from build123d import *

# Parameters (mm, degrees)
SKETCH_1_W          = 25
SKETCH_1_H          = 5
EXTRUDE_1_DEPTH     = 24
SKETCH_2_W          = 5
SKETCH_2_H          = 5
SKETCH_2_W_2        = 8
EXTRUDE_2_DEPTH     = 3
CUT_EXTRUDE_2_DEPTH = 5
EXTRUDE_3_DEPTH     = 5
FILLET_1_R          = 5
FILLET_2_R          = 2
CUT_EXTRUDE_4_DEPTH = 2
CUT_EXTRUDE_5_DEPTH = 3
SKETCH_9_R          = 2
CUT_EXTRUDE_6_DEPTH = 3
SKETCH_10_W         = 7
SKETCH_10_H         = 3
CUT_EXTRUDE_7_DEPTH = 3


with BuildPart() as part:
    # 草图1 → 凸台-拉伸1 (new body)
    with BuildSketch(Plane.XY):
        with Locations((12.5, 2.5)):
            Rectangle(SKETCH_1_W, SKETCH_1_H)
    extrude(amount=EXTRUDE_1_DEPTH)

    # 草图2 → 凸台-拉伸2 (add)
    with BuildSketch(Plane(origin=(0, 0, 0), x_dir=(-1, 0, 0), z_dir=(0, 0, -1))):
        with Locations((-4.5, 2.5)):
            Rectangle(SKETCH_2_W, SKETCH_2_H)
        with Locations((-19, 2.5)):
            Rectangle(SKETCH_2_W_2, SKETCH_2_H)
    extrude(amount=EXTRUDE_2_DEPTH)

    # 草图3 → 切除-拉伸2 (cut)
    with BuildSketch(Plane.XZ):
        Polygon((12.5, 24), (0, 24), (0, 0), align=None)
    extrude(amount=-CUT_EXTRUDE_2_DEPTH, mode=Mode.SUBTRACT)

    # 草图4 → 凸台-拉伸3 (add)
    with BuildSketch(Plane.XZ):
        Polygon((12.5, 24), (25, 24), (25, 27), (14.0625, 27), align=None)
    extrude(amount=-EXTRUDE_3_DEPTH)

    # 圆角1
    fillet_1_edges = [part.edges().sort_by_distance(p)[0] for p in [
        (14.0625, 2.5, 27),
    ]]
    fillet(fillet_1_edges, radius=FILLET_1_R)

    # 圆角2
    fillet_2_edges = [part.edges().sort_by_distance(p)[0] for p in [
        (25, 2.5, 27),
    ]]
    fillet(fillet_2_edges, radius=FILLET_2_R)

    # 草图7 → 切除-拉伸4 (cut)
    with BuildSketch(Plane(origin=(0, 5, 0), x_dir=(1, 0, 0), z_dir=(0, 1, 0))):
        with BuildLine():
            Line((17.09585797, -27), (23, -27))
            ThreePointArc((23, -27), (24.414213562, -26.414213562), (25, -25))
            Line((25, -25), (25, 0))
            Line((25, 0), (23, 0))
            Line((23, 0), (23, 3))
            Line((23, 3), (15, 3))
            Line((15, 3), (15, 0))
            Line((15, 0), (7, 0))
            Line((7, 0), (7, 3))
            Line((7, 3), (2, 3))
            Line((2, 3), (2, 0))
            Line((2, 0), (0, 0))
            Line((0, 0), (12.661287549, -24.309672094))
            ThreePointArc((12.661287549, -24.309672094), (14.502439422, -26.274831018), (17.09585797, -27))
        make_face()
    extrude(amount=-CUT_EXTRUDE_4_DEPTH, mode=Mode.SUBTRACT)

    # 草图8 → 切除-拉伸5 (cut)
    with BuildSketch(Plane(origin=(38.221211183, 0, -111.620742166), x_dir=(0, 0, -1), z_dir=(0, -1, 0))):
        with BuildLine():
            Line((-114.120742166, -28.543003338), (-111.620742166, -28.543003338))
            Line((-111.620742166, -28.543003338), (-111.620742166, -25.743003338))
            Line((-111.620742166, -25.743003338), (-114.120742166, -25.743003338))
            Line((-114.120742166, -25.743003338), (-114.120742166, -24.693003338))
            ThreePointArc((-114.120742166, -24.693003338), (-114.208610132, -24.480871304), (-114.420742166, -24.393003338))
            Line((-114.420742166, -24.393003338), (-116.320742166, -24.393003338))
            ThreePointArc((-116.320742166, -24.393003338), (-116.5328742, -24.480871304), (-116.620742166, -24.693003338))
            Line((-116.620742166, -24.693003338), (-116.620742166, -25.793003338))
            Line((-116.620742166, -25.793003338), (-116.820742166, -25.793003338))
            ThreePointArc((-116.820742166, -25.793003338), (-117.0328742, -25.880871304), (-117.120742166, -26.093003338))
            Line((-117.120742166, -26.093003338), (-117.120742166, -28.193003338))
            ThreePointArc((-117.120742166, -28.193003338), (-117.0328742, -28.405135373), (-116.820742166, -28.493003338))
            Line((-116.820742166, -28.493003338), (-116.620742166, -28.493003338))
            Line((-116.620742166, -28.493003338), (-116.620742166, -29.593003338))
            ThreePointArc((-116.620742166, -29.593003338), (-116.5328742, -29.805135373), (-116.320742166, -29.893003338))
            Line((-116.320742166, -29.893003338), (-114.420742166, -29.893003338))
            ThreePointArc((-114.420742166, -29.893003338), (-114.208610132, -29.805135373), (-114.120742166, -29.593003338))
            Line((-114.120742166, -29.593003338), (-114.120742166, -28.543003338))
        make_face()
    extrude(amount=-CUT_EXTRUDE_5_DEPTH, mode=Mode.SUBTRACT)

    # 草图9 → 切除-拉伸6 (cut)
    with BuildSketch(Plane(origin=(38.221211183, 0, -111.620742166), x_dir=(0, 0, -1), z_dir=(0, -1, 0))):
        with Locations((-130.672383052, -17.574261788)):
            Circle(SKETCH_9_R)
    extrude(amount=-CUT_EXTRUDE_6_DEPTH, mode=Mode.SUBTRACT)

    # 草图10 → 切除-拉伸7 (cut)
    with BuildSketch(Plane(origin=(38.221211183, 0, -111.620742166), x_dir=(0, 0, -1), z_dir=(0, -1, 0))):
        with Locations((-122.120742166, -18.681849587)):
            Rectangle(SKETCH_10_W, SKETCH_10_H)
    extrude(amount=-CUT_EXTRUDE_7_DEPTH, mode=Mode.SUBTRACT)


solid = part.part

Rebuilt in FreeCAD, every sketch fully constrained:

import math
import FreeCAD as App
import Part
import Sketcher


def edges_at(feature, points):
    """Names of the edges that pass closest to the given points."""
    edges = feature.Shape.Edges
    near = lambda p: min(range(len(edges)), key=lambda i: edges[i].distToShape(Part.Vertex(*p))[0])
    return sorted({f"Edge{near(p) + 1}" for p in points})

doc = App.newDocument("Part")
params = doc.addObject("Spreadsheet::Sheet", "Params")
for row, (alias, value) in enumerate([
    ("sketch1_width", "25 mm"),
    ("sketch1_height", "5 mm"),
    ("pad1_length", "24 mm"),
    ("sketch2_width", "5 mm"),
    ("sketch2_width2", "8 mm"),
    ("pad2_length", "3 mm"),
    ("sketch3_height", "24 mm"),
    ("sketch3_width", "12.5 mm"),
    ("pocket1_length", "5 mm"),
    ("sketch4_height", "3 mm"),
    ("sketch4_width", "12.5 mm"),
    ("pad3_length", "5 mm"),
    ("fillet_radius", "5 mm"),
    ("fillet2_radius", "2 mm"),
    ("sketch5_radius", "2 mm"),
    ("sketch5_radius2", "5 mm"),
    ("sketch5_width", "8 mm"),
    ("sketch5_width2", "5 mm"),
    ("sketch5_height", "25 mm"),
    ("pocket2_length", "2 mm"),
    ("sketch6_radius", "0.3 mm"),
    ("sketch6_width", "2.8 mm"),
    ("sketch6_width2", "1.1 mm"),
    ("sketch6_width3", "2.1 mm"),
    ("sketch6_height", "2.5 mm"),
    ("pocket3_length", "3 mm"),
    ("sketch7_diameter", "4 mm"),
    ("pocket4_length", "3 mm"),
    ("sketch8_width", "3 mm"),
    ("sketch8_height", "7 mm"),
    ("pocket5_length", "3 mm"),
], start=1):
    params.set(f"A{row}", alias)
    params.set(f"B{row}", "=" + value)
    params.setAlias(f"B{row}", alias)

body = doc.addObject("PartDesign::Body", "Body")

# Sketch on XY plane
sketch1 = body.newObject("Sketcher::SketchObject", "Sketch")
sketch1.AttachmentSupport = (doc.getObject("XY_Plane"), [""])
sketch1.MapMode = "FlatFace"
sketch1.addGeometry([
    Part.LineSegment(App.Vector(0, 5, 0), App.Vector(0, 0, 0)),
    Part.LineSegment(App.Vector(0, 0, 0), App.Vector(25, 0, 0)),
    Part.LineSegment(App.Vector(25, 0, 0), App.Vector(25, 5, 0)),
    Part.LineSegment(App.Vector(25, 5, 0), App.Vector(0, 5, 0)),
], False)
sketch1.addConstraint([
    Sketcher.Constraint("Coincident", 0, 2, 1, 1),
    Sketcher.Constraint("Coincident", 1, 2, 2, 1),
    Sketcher.Constraint("Coincident", 2, 2, 3, 1),
    Sketcher.Constraint("Coincident", 3, 2, 0, 1),
    Sketcher.Constraint("Vertical", 0),
    Sketcher.Constraint("Horizontal", 1),
    Sketcher.Constraint("Vertical", 2),
    Sketcher.Constraint("Horizontal", 3),
    Sketcher.Constraint("Coincident", 0, 2, -1, 1),
    Sketcher.Constraint("DistanceX", 1, 1, 1, 2, 25.0),
    Sketcher.Constraint("DistanceY", 0, 2, 0, 1, 5.0),
])
sketch1.setExpression("Constraints[9]", "Params.sketch1_width")
sketch1.setExpression("Constraints[10]", "Params.sketch1_height")
pad1 = body.newObject("PartDesign::Pad", "Pad")
pad1.Profile = sketch1
pad1.setExpression("Length", "Params.pad1_length")

# Sketch on XY plane
sketch2 = body.newObject("Sketcher::SketchObject", "Sketch001")
sketch2.AttachmentSupport = (doc.getObject("XY_Plane"), [""])
sketch2.MapMode = "FlatFace"
sketch2.addGeometry([
    Part.LineSegment(App.Vector(7, 5, 0), App.Vector(7, 0, 0)),  # 0
    Part.LineSegment(App.Vector(7, 0, 0), App.Vector(2, 0, 0)),  # 1
    Part.LineSegment(App.Vector(2, 0, 0), App.Vector(2, 5, 0)),  # 2
    Part.LineSegment(App.Vector(2, 5, 0), App.Vector(7, 5, 0)),  # 3
    Part.LineSegment(App.Vector(23, 5, 0), App.Vector(23, 0, 0)),  # 4
    Part.LineSegment(App.Vector(23, 0, 0), App.Vector(15, 0, 0)),  # 5
    Part.LineSegment(App.Vector(15, 0, 0), App.Vector(15, 5, 0)),  # 6
    Part.LineSegment(App.Vector(15, 5, 0), App.Vector(23, 5, 0)),  # 7
], False)
sketch2.addConstraint([
    Sketcher.Constraint("Coincident", 0, 2, 1, 1),
    Sketcher.Constraint("Coincident", 1, 2, 2, 1),
    Sketcher.Constraint("Coincident", 2, 2, 3, 1),
    Sketcher.Constraint("Coincident", 3, 2, 0, 1),
    Sketcher.Constraint("Coincident", 4, 2, 5, 1),
    Sketcher.Constraint("Coincident", 5, 2, 6, 1),
    Sketcher.Constraint("Coincident", 6, 2, 7, 1),
    Sketcher.Constraint("Coincident", 7, 2, 4, 1),
    Sketcher.Constraint("Vertical", 0),
    Sketcher.Constraint("Horizontal", 1),
    Sketcher.Constraint("Vertical", 2),
    Sketcher.Constraint("Horizontal", 3),
    Sketcher.Constraint("Vertical", 4),
    Sketcher.Constraint("Horizontal", 5),
    Sketcher.Constraint("Vertical", 6),
    Sketcher.Constraint("Horizontal", 7),
    Sketcher.Constraint("PointOnObject", 0, 2, -1),
    Sketcher.Constraint("PointOnObject", 4, 2, -1),
    Sketcher.Constraint("Horizontal", 3, 2, 6, 2),
    Sketcher.Constraint("Equal", 3, 0),
    Sketcher.Constraint("DistanceX", 1, 2, 1, 1, 5.0),
    Sketcher.Constraint("DistanceX", 5, 2, 5, 1, 8.0),
    Sketcher.Constraint("DistanceX", -1, 1, 0, 2, 7.0),
    Sketcher.Constraint("DistanceX", -1, 1, 4, 2, 23.0),
])
sketch2.setExpression("Constraints[20]", "Params.sketch2_width")
sketch2.setExpression("Constraints[21]", "Params.sketch2_width2")
pad2 = body.newObject("PartDesign::Pad", "Pad001")
pad2.Profile = sketch2
pad2.setExpression("Length", "Params.pad2_length")
pad2.Reversed = True

# Sketch on XZ plane
sketch3 = body.newObject("Sketcher::SketchObject", "Sketch002")
sketch3.AttachmentSupport = (doc.getObject("XZ_Plane"), [""])
sketch3.MapMode = "FlatFace"
sketch3.addGeometry([
    Part.LineSegment(App.Vector(12, 24, 0), App.Vector(0, 24, 0)),
    Part.LineSegment(App.Vector(0, 24, 0), App.Vector(0, 0, 0)),
    Part.LineSegment(App.Vector(0, 0, 0), App.Vector(12, 24, 0)),
], False)
sketch3.addConstraint([
    Sketcher.Constraint("Coincident", 0, 2, 1, 1),
    Sketcher.Constraint("Coincident", 1, 2, 2, 1),
    Sketcher.Constraint("Coincident", 2, 2, 0, 1),
    Sketcher.Constraint("Horizontal", 0),
    Sketcher.Constraint("Vertical", 1),
    Sketcher.Constraint("Coincident", 1, 2, -1, 1),
    Sketcher.Constraint("DistanceY", 1, 2, 1, 1, 24.0),
    Sketcher.Constraint("DistanceX", 0, 2, 0, 1, 12.5),
])
sketch3.setExpression("Constraints[6]", "Params.sketch3_height")
sketch3.setExpression("Constraints[7]", "Params.sketch3_width")
pocket1 = body.newObject("PartDesign::Pocket", "Pocket")
pocket1.Profile = sketch3
pocket1.setExpression("Length", "Params.pocket1_length")

# Sketch on XZ plane
sketch4 = body.newObject("Sketcher::SketchObject", "Sketch003")
sketch4.AttachmentSupport = (doc.getObject("XZ_Plane"), [""])
sketch4.MapMode = "FlatFace"
sketch4.addGeometry([
    Part.LineSegment(App.Vector(12.5, 24, 0), App.Vector(25, 24, 0)),
    Part.LineSegment(App.Vector(25, 24, 0), App.Vector(25, 27, 0)),
    Part.LineSegment(App.Vector(25, 27, 0), App.Vector(14.1, 27, 0)),
    Part.LineSegment(App.Vector(14.1, 27, 0), App.Vector(12.5, 24, 0)),
], False)
sketch4.addConstraint([
    Sketcher.Constraint("Coincident", 0, 2, 1, 1),
    Sketcher.Constraint("Coincident", 1, 2, 2, 1),
    Sketcher.Constraint("Coincident", 2, 2, 3, 1),
    Sketcher.Constraint("Coincident", 3, 2, 0, 1),
    Sketcher.Constraint("Horizontal", 0),
    Sketcher.Constraint("Vertical", 1),
    Sketcher.Constraint("Horizontal", 2),
    Sketcher.Constraint("DistanceY", 1, 1, 1, 2, 3.0),
    Sketcher.Constraint("DistanceX", 0, 1, 0, 2, 12.5),
    Sketcher.Constraint("DistanceX", -1, 1, 0, 2, 25.0),
    Sketcher.Constraint("DistanceY", -1, 1, 0, 2, 24.0),
    Sketcher.Constraint("DistanceX", 2, 2, 2, 1, 10.9375),
])
sketch4.setExpression("Constraints[7]", "Params.sketch4_height")
sketch4.setExpression("Constraints[8]", "Params.sketch4_width")
pad3 = body.newObject("PartDesign::Pad", "Pad002")
pad3.Profile = sketch4
pad3.setExpression("Length", "Params.pad3_length")
pad3.Reversed = True
doc.recompute()

fillet = body.newObject("PartDesign::Fillet", "Fillet")
fillet.Base = (pad3, edges_at(pad3, [(14.062, 2.5, 27)]))
fillet.setExpression("Radius", "Params.fillet_radius")
doc.recompute()

fillet2 = body.newObject("PartDesign::Fillet", "Fillet001")
fillet2.Base = (fillet, edges_at(fillet, [(25, 2.5, 27)]))
fillet2.setExpression("Radius", "Params.fillet2_radius")

# Sketch on XZ plane
sketch5 = body.newObject("Sketcher::SketchObject", "Sketch004")
sketch5.AttachmentSupport = (doc.getObject("XZ_Plane"), [""])
sketch5.MapMode = "FlatFace"
sketch5.AttachmentOffset = App.Placement(App.Vector(0, 0, -5), App.Rotation())
sketch5.addGeometry([
    Part.LineSegment(App.Vector(17.1, 27, 0), App.Vector(23, 27, 0)),  # 0
    Part.ArcOfCircle(Part.Circle(App.Vector(23, 25, 0), App.Vector(0, 0, 1), 2), math.radians(0), math.radians(90)),  # 1
    Part.LineSegment(App.Vector(25, 25, 0), App.Vector(25, 0, 0)),  # 2
    Part.LineSegment(App.Vector(25, 0, 0), App.Vector(23, 0, 0)),  # 3
    Part.LineSegment(App.Vector(23, 0, 0), App.Vector(23, -3, 0)),  # 4
    Part.LineSegment(App.Vector(23, -3, 0), App.Vector(15, -3, 0)),  # 5
    Part.LineSegment(App.Vector(15, -3, 0), App.Vector(15, 0, 0)),  # 6
    Part.LineSegment(App.Vector(15, 0, 0), App.Vector(7, 0, 0)),  # 7
    Part.LineSegment(App.Vector(7, 0, 0), App.Vector(7, -3, 0)),  # 8
    Part.LineSegment(App.Vector(7, -3, 0), App.Vector(2, -3, 0)),  # 9
    Part.LineSegment(App.Vector(2, -3, 0), App.Vector(2, 0, 0)),  # 10
    Part.LineSegment(App.Vector(2, 0, 0), App.Vector(0, 0, 0)),  # 11
    Part.LineSegment(App.Vector(0, 0, 0), App.Vector(12.7, 24.3, 0)),  # 12
    Part.ArcOfCircle(Part.Circle(App.Vector(17.1, 22, 0), App.Vector(0, 0, 1), 5), math.radians(90), math.radians(152)),  # 13
], False)
sketch5.addConstraint([
    Sketcher.Constraint("Tangent", 0, 2, 1, 2),
    Sketcher.Constraint("Tangent", 1, 1, 2, 1),
    Sketcher.Constraint("Coincident", 2, 2, 3, 1),
    Sketcher.Constraint("Coincident", 3, 2, 4, 1),
    Sketcher.Constraint("Coincident", 4, 2, 5, 1),
    Sketcher.Constraint("Coincident", 5, 2, 6, 1),
    Sketcher.Constraint("Coincident", 6, 2, 7, 1),
    Sketcher.Constraint("Coincident", 7, 2, 8, 1),
    Sketcher.Constraint("Coincident", 8, 2, 9, 1),
    Sketcher.Constraint("Coincident", 9, 2, 10, 1),
    Sketcher.Constraint("Coincident", 10, 2, 11, 1),
    Sketcher.Constraint("Coincident", 11, 2, 12, 1),
    Sketcher.Constraint("Tangent", 12, 2, 13, 2),
    Sketcher.Constraint("Tangent", 13, 1, 0, 1),
    Sketcher.Constraint("Horizontal", 0),
    Sketcher.Constraint("Vertical", 2),
    Sketcher.Constraint("Horizontal", 3),
    Sketcher.Constraint("Vertical", 4),
    Sketcher.Constraint("Horizontal", 5),
    Sketcher.Constraint("Vertical", 6),
    Sketcher.Constraint("Horizontal", 7),
    Sketcher.Constraint("Vertical", 8),
    Sketcher.Constraint("Horizontal", 9),
    Sketcher.Constraint("Vertical", 10),
    Sketcher.Constraint("Horizontal", 11),
    Sketcher.Constraint("Coincident", 11, 2, -1, 1),
    Sketcher.Constraint("PointOnObject", 2, 2, -1),
    Sketcher.Constraint("PointOnObject", 6, 2, -1),
    Sketcher.Constraint("Horizontal", 5, 2, 8, 2),
    Sketcher.Constraint("Vertical", 0, 2, 3, 2),
    Sketcher.Constraint("Equal", 5, 7),
    Sketcher.Constraint("Equal", 3, 11),
    Sketcher.Constraint("Radius", 1, 2.0),
    Sketcher.Constraint("Radius", 13, 5.0),
    Sketcher.Constraint("DistanceX", 5, 2, 5, 1, 8.0),
    Sketcher.Constraint("DistanceX", 9, 2, 9, 1, 5.0),
    Sketcher.Constraint("DistanceY", 2, 2, 2, 1, 25.0),
    Sketcher.Constraint("DistanceY", 4, 2, 4, 1, 3.0),
    Sketcher.Constraint("DistanceX", 0, 1, 0, 2, 5.904142),
])
sketch5.setExpression("Constraints[32]", "Params.sketch5_radius")
sketch5.setExpression("Constraints[33]", "Params.sketch5_radius2")
sketch5.setExpression("Constraints[34]", "Params.sketch5_width")
sketch5.setExpression("Constraints[35]", "Params.sketch5_width2")
sketch5.setExpression("Constraints[36]", "Params.sketch5_height")
pocket2 = body.newObject("PartDesign::Pocket", "Pocket001")
pocket2.Profile = sketch5
pocket2.setExpression("Length", "Params.pocket2_length")
pocket2.Reversed = True

# Sketch on XZ plane
sketch6 = body.newObject("Sketcher::SketchObject", "Sketch005")
sketch6.AttachmentSupport = (doc.getObject("XZ_Plane"), [""])
sketch6.MapMode = "FlatFace"
sketch6.addGeometry([
    Part.LineSegment(App.Vector(9.68, 2.5, 0), App.Vector(9.68, 0, 0)),  # 0
    Part.LineSegment(App.Vector(9.68, 0, 0), App.Vector(12.48, 0, 0)),  # 1
    Part.LineSegment(App.Vector(12.48, 0, 0), App.Vector(12.48, 2.5, 0)),  # 2
    Part.LineSegment(App.Vector(12.48, 2.5, 0), App.Vector(13.53, 2.5, 0)),  # 3
    Part.ArcOfCircle(Part.Circle(App.Vector(13.53, 2.8, 0), App.Vector(0, 0, 1), 0.3), math.radians(-90), math.radians(0)),  # 4
    Part.LineSegment(App.Vector(13.83, 2.8, 0), App.Vector(13.83, 4.7, 0)),  # 5
    Part.ArcOfCircle(Part.Circle(App.Vector(13.53, 4.7, 0), App.Vector(0, 0, 1), 0.3), math.radians(0), math.radians(90)),  # 6
    Part.LineSegment(App.Vector(13.53, 5, 0), App.Vector(12.43, 5, 0)),  # 7
    Part.LineSegment(App.Vector(12.43, 5, 0), App.Vector(12.43, 5.2, 0)),  # 8
    Part.ArcOfCircle(Part.Circle(App.Vector(12.13, 5.2, 0), App.Vector(0, 0, 1), 0.3), math.radians(0), math.radians(90)),  # 9
    Part.LineSegment(App.Vector(12.13, 5.5, 0), App.Vector(10.03, 5.5, 0)),  # 10
    Part.ArcOfCircle(Part.Circle(App.Vector(10.03, 5.2, 0), App.Vector(0, 0, 1), 0.3), math.radians(90), math.radians(180)),  # 11
    Part.LineSegment(App.Vector(9.73, 5.2, 0), App.Vector(9.73, 5, 0)),  # 12
    Part.LineSegment(App.Vector(9.73, 5, 0), App.Vector(8.63, 5, 0)),  # 13
    Part.ArcOfCircle(Part.Circle(App.Vector(8.63, 4.7, 0), App.Vector(0, 0, 1), 0.3), math.radians(90), math.radians(180)),  # 14
    Part.LineSegment(App.Vector(8.33, 4.7, 0), App.Vector(8.33, 2.8, 0)),  # 15
    Part.ArcOfCircle(Part.Circle(App.Vector(8.63, 2.8, 0), App.Vector(0, 0, 1), 0.3), math.radians(180), math.radians(270)),  # 16
    Part.LineSegment(App.Vector(8.63, 2.5, 0), App.Vector(9.68, 2.5, 0)),  # 17
], False)
sketch6.addConstraint([
    Sketcher.Constraint("Coincident", 0, 2, 1, 1),
    Sketcher.Constraint("Coincident", 1, 2, 2, 1),
    Sketcher.Constraint("Coincident", 2, 2, 3, 1),
    Sketcher.Constraint("Tangent", 3, 2, 4, 1),
    Sketcher.Constraint("Tangent", 4, 2, 5, 1),
    Sketcher.Constraint("Tangent", 5, 2, 6, 1),
    Sketcher.Constraint("Tangent", 6, 2, 7, 1),
    Sketcher.Constraint("Coincident", 7, 2, 8, 1),
    Sketcher.Constraint("Tangent", 8, 2, 9, 1),
    Sketcher.Constraint("Tangent", 9, 2, 10, 1),
    Sketcher.Constraint("Tangent", 10, 2, 11, 1),
    Sketcher.Constraint("Tangent", 11, 2, 12, 1),
    Sketcher.Constraint("Coincident", 12, 2, 13, 1),
    Sketcher.Constraint("Tangent", 13, 2, 14, 1),
    Sketcher.Constraint("Tangent", 14, 2, 15, 1),
    Sketcher.Constraint("Tangent", 15, 2, 16, 1),
    Sketcher.Constraint("Tangent", 16, 2, 17, 1),
    Sketcher.Constraint("Coincident", 17, 2, 0, 1),
    Sketcher.Constraint("Vertical", 0),
    Sketcher.Constraint("Horizontal", 1),
    Sketcher.Constraint("Vertical", 2),
    Sketcher.Constraint("Horizontal", 3),
    Sketcher.Constraint("Vertical", 5),
    Sketcher.Constraint("Horizontal", 7),
    Sketcher.Constraint("Vertical", 8),
    Sketcher.Constraint("Horizontal", 10),
    Sketcher.Constraint("Vertical", 12),
    Sketcher.Constraint("Horizontal", 13),
    Sketcher.Constraint("Vertical", 15),
    Sketcher.Constraint("Horizontal", 17),
    Sketcher.Constraint("Equal", 4, 6),
    Sketcher.Constraint("Equal", 6, 9),
    Sketcher.Constraint("Equal", 9, 11),
    Sketcher.Constraint("Equal", 11, 14),
    Sketcher.Constraint("Equal", 14, 16),
    Sketcher.Constraint("PointOnObject", 0, 2, -1),
    Sketcher.Constraint("Horizontal", 6, 3, 14, 3),
    Sketcher.Constraint("Horizontal", 4, 3, 16, 3),
    Sketcher.Constraint("Equal", 7, 13),
    Sketcher.Constraint("Equal", 3, 17),
    Sketcher.Constraint("Radius", 4, 0.3),
    Sketcher.Constraint("DistanceX", 1, 1, 1, 2, 2.8),
    Sketcher.Constraint("DistanceX", 7, 2, 7, 1, 1.1),
    Sketcher.Constraint("DistanceX", 10, 2, 10, 1, 2.1),
    Sketcher.Constraint("DistanceY", 0, 2, 0, 1, 2.5),
    Sketcher.Constraint("DistanceY", 5, 1, 5, 2, 1.9),
    Sketcher.Constraint("DistanceY", 8, 1, 8, 2, 0.2),
    Sketcher.Constraint("DistanceX", -1, 1, 4, 3, 13.528208),
])
sketch6.setExpression("Constraints[40]", "Params.sketch6_radius")
sketch6.setExpression("Constraints[41]", "Params.sketch6_width")
sketch6.setExpression("Constraints[42]", "Params.sketch6_width2")
sketch6.setExpression("Constraints[43]", "Params.sketch6_width3")
sketch6.setExpression("Constraints[44]", "Params.sketch6_height")
pocket3 = body.newObject("PartDesign::Pocket", "Pocket002")
pocket3.Profile = sketch6
pocket3.setExpression("Length", "Params.pocket3_length")

# Sketch on XZ plane
sketch7 = body.newObject("Sketcher::SketchObject", "Sketch006")
sketch7.AttachmentSupport = (doc.getObject("XZ_Plane"), [""])
sketch7.MapMode = "FlatFace"
sketch7.addGeometry(Part.Circle(App.Vector(20.6, 19.1, 0), App.Vector(0, 0, 1), 2), False)
sketch7.addConstraint([
    Sketcher.Constraint("Diameter", 0, 4.0),
    Sketcher.Constraint("DistanceX", -1, 1, 0, 3, 20.646949),
    Sketcher.Constraint("DistanceY", -1, 1, 0, 3, 19.051641),
])
sketch7.setExpression("Constraints[0]", "Params.sketch7_diameter")
pocket4 = body.newObject("PartDesign::Pocket", "Pocket003")
pocket4.Profile = sketch7
pocket4.setExpression("Length", "Params.pocket4_length")

# Sketch on XZ plane
sketch8 = body.newObject("Sketcher::SketchObject", "Sketch007")
sketch8.AttachmentSupport = (doc.getObject("XZ_Plane"), [""])
sketch8.MapMode = "FlatFace"
sketch8.addGeometry([
    Part.LineSegment(App.Vector(21, 14, 0), App.Vector(18, 14, 0)),
    Part.LineSegment(App.Vector(18, 14, 0), App.Vector(18, 7, 0)),
    Part.LineSegment(App.Vector(18, 7, 0), App.Vector(21, 7, 0)),
    Part.LineSegment(App.Vector(21, 7, 0), App.Vector(21, 14, 0)),
], False)
sketch8.addConstraint([
    Sketcher.Constraint("Coincident", 0, 2, 1, 1),
    Sketcher.Constraint("Coincident", 1, 2, 2, 1),
    Sketcher.Constraint("Coincident", 2, 2, 3, 1),
    Sketcher.Constraint("Coincident", 3, 2, 0, 1),
    Sketcher.Constraint("Horizontal", 0),
    Sketcher.Constraint("Vertical", 1),
    Sketcher.Constraint("Horizontal", 2),
    Sketcher.Constraint("Vertical", 3),
    Sketcher.Constraint("DistanceX", 0, 2, 0, 1, 3.0),
    Sketcher.Constraint("DistanceY", 1, 2, 1, 1, 7.0),
    Sketcher.Constraint("DistanceY", -1, 1, 0, 2, 14.0),
    Sketcher.Constraint("DistanceX", -1, 1, 0, 2, 18.039362),
])
sketch8.setExpression("Constraints[8]", "Params.sketch8_width")
sketch8.setExpression("Constraints[9]", "Params.sketch8_height")
pocket5 = body.newObject("PartDesign::Pocket", "Pocket004")
pocket5.Profile = sketch8
pocket5.setExpression("Length", "Params.pocket5_length")

doc.recompute()
